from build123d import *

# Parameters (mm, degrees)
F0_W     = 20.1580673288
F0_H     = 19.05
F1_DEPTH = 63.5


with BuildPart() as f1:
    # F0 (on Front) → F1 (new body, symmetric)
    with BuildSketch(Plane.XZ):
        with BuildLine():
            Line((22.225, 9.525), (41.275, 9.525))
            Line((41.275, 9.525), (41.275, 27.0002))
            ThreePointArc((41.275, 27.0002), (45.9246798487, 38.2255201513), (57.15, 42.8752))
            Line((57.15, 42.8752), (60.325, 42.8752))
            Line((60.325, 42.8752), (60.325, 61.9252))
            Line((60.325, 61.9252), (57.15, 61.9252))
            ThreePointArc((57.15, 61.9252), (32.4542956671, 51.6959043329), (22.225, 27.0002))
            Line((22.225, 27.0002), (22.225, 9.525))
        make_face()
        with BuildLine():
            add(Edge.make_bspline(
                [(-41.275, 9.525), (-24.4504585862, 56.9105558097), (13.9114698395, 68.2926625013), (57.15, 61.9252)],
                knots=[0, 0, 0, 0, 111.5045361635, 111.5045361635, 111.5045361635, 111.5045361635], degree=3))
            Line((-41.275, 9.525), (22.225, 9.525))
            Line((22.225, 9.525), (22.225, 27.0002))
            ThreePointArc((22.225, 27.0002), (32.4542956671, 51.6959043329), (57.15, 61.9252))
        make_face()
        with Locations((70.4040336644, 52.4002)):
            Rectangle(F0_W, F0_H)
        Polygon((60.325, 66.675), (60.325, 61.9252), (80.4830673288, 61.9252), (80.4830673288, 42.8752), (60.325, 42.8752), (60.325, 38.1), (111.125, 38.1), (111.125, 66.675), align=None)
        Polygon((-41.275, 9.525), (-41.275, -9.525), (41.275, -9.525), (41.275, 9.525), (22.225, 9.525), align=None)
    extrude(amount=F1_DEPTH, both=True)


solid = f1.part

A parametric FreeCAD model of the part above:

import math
import FreeCAD as App
import Part
import Sketcher

V = App.Vector
Q = App.Units.Quantity

doc = App.newDocument("Part")
body = doc.addObject("PartDesign::Body", "Body")

sketch1 = body.newObject("Sketcher::SketchObject", "Sketch")
sketch1.AttachmentSupport = (doc.getObject("XZ_Plane"), [""])
sketch1.MapMode = "FlatFace"
sketch1.addGeometry([
    Part.ArcOfCircle(Part.Circle(V(57.15, 27.0002, 0), V(0, 0, 1), 15.875), math.radians(90), math.radians(180)),
    Part.LineSegment(V(57.15, 42.8752, 0), V(60.325, 42.8752, 0)),
    Part.LineSegment(V(60.325, 42.8752, 0), V(60.325, 38.1, 0)),
    Part.LineSegment(V(60.325, 38.1, 0), V(111.125, 38.1, 0)),
    Part.LineSegment(V(111.125, 38.1, 0), V(111.125, 66.675, 0)),
    Part.LineSegment(V(111.125, 66.675, 0), V(60.325, 66.675, 0)),
    Part.LineSegment(V(60.325, 66.675, 0), V(60.325, 61.9252, 0)),
    Part.LineSegment(V(60.325, 61.9252, 0), V(57.15, 61.9252, 0)),
    Part.BSplineCurve([V(-41.275, 9.525, 0), V(-24.450459, 56.910556, 0), V(13.91147, 68.292663, 0), V(57.15, 61.9252, 0)], [4, 4], [0, 111.504536164], False, 3, [1, 1, 1, 1], False),
    Part.LineSegment(V(-41.275, 9.525, 0), V(-41.275, -9.525, 0)),
    Part.LineSegment(V(-41.275, -9.525, 0), V(41.275, -9.525, 0)),
    Part.LineSegment(V(41.275, -9.525, 0), V(41.275, 27.0002, 0)),
], False)
sketch1.addConstraint([
    Sketcher.Constraint("Block", 8),
    Sketcher.Constraint("Tangent", 0, 1, 1, 1),
    Sketcher.Constraint("Coincident", 1, 2, 2, 1),
    Sketcher.Constraint("Coincident", 2, 2, 3, 1),
    Sketcher.Constraint("Coincident", 3, 2, 4, 1),
    Sketcher.Constraint("Coincident", 4, 2, 5, 1),
    Sketcher.Constraint("Coincident", 5, 2, 6, 1),
    Sketcher.Constraint("Coincident", 6, 2, 7, 1),
    Sketcher.Constraint("Coincident", 7, 2, 8, 2),
    Sketcher.Constraint("Coincident", 8, 1, 9, 1),
    Sketcher.Constraint("Coincident", 9, 2, 10, 1),
    Sketcher.Constraint("Coincident", 10, 2, 11, 1),
    Sketcher.Constraint("Tangent", 11, 2, 0, 2),
    Sketcher.Constraint("Horizontal", 1),
    Sketcher.Constraint("Vertical", 2),
    Sketcher.Constraint("Horizontal", 3),
    Sketcher.Constraint("Vertical", 4),
    Sketcher.Constraint("Horizontal", 5),
    Sketcher.Constraint("Vertical", 6),
    Sketcher.Constraint("Horizontal", 7),
    Sketcher.Constraint("Vertical", 9),
    Sketcher.Constraint("Horizontal", 10),
    Sketcher.Constraint("Vertical", 11),
    Sketcher.Constraint("Vertical", 2, 2, 5, 2),
    Sketcher.Constraint("Vertical", 0, 1, 7, 2),
    Sketcher.Constraint("DistanceX", 3, 1, 3, 2, Q("2 in")),
    Sketcher.Constraint("Radius", 0, Q("0.625 in")),
    Sketcher.Constraint("DistanceX", 9, 2, 2, 2, Q("4 in")),
    Sketcher.Constraint("DistanceY", 9, 2, 9, 1, Q("0.75 in")),
    Sketcher.Constraint("DistanceY", -1, 1, 2, 2, Q("1.5 in")),
    Sketcher.Constraint("DistanceY", 2, 2, 2, 1, Q("0.188 in")),
    Sketcher.Constraint("DistanceY", 4, 1, 4, 2, Q("1.125 in")),
])
pad1 = body.newObject("PartDesign::Pad", "Pad")
pad1.Profile = sketch1
pad1.Length = Q("5 in")
pad1.Midplane = True

doc.recompute()
